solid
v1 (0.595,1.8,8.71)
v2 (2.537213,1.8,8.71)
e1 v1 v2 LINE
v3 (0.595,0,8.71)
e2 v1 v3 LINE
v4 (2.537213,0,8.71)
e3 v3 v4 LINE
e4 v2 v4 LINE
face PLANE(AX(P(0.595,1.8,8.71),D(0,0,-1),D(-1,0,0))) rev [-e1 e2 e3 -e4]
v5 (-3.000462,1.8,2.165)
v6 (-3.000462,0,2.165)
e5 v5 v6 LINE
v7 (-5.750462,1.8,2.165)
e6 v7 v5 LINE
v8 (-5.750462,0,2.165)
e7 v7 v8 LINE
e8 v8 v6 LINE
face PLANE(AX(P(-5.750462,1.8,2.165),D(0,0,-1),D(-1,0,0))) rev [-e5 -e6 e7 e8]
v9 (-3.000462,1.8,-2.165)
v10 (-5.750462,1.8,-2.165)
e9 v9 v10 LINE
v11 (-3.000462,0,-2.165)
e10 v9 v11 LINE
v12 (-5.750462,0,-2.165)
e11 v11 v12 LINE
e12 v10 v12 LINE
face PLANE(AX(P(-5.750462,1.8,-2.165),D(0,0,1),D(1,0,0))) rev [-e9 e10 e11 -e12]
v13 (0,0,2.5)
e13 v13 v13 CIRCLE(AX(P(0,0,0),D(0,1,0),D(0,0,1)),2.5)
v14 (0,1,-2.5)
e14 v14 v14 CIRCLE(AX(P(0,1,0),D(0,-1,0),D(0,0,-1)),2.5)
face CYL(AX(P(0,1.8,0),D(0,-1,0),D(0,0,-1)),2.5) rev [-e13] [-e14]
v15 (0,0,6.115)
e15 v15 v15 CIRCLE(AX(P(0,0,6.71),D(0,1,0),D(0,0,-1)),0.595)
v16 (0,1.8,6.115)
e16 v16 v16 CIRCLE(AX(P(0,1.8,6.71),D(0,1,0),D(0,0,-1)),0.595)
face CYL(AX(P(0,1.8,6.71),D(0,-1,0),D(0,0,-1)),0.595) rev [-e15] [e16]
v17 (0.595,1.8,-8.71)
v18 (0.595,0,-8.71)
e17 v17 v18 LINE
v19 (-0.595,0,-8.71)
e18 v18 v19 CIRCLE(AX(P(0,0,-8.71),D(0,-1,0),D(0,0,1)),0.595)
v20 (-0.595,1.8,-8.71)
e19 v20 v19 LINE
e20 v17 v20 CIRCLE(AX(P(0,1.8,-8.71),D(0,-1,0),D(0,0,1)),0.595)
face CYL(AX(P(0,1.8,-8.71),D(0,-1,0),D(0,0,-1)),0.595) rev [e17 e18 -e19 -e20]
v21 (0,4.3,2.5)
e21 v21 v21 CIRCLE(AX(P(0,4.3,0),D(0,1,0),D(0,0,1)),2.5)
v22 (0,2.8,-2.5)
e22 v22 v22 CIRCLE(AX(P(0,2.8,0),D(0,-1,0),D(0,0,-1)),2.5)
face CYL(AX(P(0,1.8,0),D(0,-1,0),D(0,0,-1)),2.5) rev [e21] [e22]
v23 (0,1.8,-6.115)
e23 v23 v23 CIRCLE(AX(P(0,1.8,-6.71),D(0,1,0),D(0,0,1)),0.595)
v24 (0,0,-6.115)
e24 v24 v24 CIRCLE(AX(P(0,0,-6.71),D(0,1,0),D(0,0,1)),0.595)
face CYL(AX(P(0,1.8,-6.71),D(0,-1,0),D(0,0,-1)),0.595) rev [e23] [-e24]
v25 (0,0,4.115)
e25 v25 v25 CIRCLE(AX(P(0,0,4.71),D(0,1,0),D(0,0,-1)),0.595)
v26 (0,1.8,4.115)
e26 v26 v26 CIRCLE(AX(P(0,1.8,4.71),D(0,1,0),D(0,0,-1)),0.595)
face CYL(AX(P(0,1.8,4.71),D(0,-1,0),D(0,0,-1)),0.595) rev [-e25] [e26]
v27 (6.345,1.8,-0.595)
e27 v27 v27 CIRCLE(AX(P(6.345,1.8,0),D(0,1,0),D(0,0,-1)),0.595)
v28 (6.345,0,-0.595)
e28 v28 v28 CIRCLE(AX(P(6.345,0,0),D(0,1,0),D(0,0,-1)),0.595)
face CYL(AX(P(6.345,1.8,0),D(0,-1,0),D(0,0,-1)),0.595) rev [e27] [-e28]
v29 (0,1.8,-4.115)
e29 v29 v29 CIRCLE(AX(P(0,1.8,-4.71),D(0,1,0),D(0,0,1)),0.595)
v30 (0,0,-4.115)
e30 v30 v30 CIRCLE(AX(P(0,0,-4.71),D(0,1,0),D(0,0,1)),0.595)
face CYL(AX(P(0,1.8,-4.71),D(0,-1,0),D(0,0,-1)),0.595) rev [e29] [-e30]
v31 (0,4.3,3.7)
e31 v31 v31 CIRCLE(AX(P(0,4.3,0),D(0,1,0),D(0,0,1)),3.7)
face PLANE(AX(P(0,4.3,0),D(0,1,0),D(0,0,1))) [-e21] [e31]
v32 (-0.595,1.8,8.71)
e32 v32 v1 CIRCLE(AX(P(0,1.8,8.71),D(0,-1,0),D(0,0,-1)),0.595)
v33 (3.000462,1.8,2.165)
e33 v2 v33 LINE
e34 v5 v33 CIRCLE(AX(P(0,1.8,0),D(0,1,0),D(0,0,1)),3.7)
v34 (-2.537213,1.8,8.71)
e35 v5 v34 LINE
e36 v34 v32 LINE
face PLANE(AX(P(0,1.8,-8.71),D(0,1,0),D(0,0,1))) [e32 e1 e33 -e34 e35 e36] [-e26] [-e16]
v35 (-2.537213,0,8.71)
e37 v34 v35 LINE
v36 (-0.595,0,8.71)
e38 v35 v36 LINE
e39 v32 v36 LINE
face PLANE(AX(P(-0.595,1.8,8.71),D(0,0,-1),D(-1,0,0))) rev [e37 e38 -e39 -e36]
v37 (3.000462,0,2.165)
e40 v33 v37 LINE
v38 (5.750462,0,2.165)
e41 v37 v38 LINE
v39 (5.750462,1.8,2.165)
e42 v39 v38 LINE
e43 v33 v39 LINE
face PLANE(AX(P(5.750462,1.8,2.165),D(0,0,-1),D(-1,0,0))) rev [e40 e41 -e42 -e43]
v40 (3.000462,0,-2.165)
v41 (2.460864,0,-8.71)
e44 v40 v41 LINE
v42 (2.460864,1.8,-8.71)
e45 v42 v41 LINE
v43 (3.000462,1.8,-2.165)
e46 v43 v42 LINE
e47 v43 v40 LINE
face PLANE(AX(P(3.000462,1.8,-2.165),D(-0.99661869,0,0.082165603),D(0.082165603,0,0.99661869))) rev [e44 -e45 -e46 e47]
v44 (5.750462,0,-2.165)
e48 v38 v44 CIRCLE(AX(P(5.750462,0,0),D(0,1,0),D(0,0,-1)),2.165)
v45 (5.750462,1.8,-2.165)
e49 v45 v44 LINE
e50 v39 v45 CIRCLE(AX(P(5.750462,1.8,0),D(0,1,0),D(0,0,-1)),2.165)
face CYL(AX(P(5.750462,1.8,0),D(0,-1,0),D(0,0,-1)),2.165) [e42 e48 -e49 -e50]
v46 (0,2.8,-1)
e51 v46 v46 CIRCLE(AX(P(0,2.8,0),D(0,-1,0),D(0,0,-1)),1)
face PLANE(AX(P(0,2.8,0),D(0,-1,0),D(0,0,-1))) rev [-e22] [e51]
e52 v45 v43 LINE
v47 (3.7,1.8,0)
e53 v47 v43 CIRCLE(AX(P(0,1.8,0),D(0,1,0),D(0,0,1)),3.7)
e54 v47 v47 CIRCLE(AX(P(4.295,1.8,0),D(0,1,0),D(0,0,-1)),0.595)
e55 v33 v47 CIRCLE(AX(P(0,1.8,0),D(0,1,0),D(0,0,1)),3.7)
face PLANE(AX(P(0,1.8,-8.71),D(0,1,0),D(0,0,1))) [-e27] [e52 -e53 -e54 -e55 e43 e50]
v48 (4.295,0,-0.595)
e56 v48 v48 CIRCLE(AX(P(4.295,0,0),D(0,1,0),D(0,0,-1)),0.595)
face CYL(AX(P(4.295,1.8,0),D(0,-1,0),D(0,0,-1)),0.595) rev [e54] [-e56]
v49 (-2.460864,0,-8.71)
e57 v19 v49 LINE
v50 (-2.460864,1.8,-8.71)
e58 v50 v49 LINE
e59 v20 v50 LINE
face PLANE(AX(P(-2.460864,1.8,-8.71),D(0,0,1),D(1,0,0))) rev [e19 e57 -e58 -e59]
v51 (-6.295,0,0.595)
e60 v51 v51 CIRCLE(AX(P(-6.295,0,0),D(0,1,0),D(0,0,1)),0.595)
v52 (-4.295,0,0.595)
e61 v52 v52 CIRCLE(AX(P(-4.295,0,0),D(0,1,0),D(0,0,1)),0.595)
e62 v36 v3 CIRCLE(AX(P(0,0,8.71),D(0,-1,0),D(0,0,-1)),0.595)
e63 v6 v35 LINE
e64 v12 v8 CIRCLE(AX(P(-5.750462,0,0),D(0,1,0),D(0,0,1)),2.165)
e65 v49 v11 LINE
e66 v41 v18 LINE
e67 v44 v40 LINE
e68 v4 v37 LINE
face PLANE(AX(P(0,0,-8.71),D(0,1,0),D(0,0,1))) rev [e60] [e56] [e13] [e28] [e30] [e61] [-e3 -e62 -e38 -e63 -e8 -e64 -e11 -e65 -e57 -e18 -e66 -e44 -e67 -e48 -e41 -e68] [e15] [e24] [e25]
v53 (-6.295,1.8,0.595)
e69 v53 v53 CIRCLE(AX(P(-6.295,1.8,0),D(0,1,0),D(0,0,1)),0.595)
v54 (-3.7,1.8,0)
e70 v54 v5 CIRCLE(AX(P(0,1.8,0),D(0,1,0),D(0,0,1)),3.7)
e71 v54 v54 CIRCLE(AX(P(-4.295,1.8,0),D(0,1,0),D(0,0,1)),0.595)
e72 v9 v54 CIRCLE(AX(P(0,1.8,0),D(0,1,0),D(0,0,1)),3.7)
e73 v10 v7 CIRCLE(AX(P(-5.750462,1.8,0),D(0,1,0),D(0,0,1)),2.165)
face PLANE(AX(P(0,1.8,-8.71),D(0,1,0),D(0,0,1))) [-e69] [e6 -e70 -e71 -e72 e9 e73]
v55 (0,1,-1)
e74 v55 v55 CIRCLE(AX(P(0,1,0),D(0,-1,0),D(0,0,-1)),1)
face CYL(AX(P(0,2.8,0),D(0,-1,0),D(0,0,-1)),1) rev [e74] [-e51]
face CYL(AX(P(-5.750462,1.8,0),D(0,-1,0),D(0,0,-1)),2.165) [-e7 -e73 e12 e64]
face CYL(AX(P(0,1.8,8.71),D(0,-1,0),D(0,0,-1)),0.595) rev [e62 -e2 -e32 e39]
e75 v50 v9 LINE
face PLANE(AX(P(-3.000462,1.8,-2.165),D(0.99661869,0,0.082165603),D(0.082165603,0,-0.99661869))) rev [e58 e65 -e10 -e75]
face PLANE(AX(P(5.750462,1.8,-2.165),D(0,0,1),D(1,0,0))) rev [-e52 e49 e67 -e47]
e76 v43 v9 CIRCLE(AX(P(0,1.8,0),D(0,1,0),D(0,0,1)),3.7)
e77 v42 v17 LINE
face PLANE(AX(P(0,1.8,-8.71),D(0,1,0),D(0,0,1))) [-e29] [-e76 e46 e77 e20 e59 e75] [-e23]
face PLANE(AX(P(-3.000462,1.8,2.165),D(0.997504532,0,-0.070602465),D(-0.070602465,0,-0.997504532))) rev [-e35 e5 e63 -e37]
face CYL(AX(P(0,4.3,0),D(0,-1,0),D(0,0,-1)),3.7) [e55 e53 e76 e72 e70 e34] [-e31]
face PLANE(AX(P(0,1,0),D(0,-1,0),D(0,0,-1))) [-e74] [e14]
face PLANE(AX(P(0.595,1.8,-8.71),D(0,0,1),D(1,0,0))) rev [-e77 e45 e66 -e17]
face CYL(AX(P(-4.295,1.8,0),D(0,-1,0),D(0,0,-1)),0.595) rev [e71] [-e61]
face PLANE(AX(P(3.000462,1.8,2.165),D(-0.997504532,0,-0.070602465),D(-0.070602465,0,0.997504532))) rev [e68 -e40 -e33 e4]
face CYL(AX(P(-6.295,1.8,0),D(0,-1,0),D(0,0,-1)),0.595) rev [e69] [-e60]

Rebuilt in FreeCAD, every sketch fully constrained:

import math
import FreeCAD as App
import Part
import Sketcher
Q = App.Units.Quantity

doc = App.newDocument("Part")
body = doc.addObject("PartDesign::Body", "Body")

# Sketch on XZ plane
sketch1 = doc.addObject("Sketcher::SketchObject", "Sketch")
body.addObject(sketch1)
sketch1.AttachmentSupport = (doc.XZ_Plane, [""])
sketch1.MapMode = "FlatFace"
sketch1.addGeometry([
    Part.LineSegment(App.Vector(-0.6, -8.7, 0), App.Vector(-2.5, -8.7, 0)),  # 0
    Part.LineSegment(App.Vector(-2.5, -8.7, 0), App.Vector(-3, -2.2, 0)),  # 1
    Part.LineSegment(App.Vector(-3, -2.2, 0), App.Vector(-5.8, -2.2, 0)),  # 2
    Part.ArcOfCircle(Part.Circle(App.Vector(-5.8, 0, 0), App.Vector(0, 0, 1), 2.2), math.radians(180), math.radians(270)),  # 3
    Part.ArcOfCircle(Part.Circle(App.Vector(-5.8, 0, 0), App.Vector(0, 0, 1), 2.2), math.radians(90), math.radians(180)),  # 4
    Part.LineSegment(App.Vector(-5.8, 2.2, 0), App.Vector(-3, 2.2, 0)),  # 5
    Part.LineSegment(App.Vector(-3, 2.2, 0), App.Vector(-2.5, 8.7, 0)),  # 6
    Part.LineSegment(App.Vector(-2.5, 8.7, 0), App.Vector(-0.6, 8.7, 0)),  # 7
    Part.ArcOfCircle(Part.Circle(App.Vector(0, 8.7, 0), App.Vector(0, 0, 1), 0.6), math.radians(180), math.radians(360)),  # 8
    Part.LineSegment(App.Vector(0.6, 8.7, 0), App.Vector(2.5, 8.7, 0)),  # 9
    Part.LineSegment(App.Vector(2.5, 8.7, 0), App.Vector(3, 2.2, 0)),  # 10
    Part.LineSegment(App.Vector(3, 2.2, 0), App.Vector(5.8, 2.2, 0)),  # 11
    Part.ArcOfCircle(Part.Circle(App.Vector(5.8, 0, 0), App.Vector(0, 0, 1), 2.2), math.radians(0), math.radians(90)),  # 12
    Part.ArcOfCircle(Part.Circle(App.Vector(5.8, 0, 0), App.Vector(0, 0, 1), 2.2), math.radians(-90), math.radians(0)),  # 13
    Part.LineSegment(App.Vector(5.8, -2.2, 0), App.Vector(3, -2.2, 0)),  # 14
    Part.LineSegment(App.Vector(3, -2.2, 0), App.Vector(2.5, -8.7, 0)),  # 15
    Part.LineSegment(App.Vector(2.5, -8.7, 0), App.Vector(0.6, -8.7, 0)),  # 16
    Part.ArcOfCircle(Part.Circle(App.Vector(0, -8.7, 0), App.Vector(0, 0, 1), 0.6), math.radians(0), math.radians(180)),  # 17
    Part.Circle(App.Vector(6.3, 0, 0), App.Vector(0, 0, 1), 0.6),  # 18
    Part.Circle(App.Vector(4.3, 0, 0), App.Vector(0, 0, 1), 0.6),  # 19
    Part.Circle(App.Vector(0, 6.7, 0), App.Vector(0, 0, 1), 0.6),  # 20
    Part.Circle(App.Vector(0, 4.7, 0), App.Vector(0, 0, 1), 0.6),  # 21
    Part.Circle(App.Vector(0, 0, 0), App.Vector(0, 0, 1), 2.5),  # 22
    Part.Circle(App.Vector(-4.3, 0, 0), App.Vector(0, 0, 1), 0.6),  # 23
    Part.Circle(App.Vector(-6.3, 0, 0), App.Vector(0, 0, 1), 0.6),  # 24
    Part.Circle(App.Vector(0, -4.7, 0), App.Vector(0, 0, 1), 0.6),  # 25
    Part.Circle(App.Vector(0, -6.7, 0), App.Vector(0, 0, 1), 0.6),  # 26
], False)
sketch1.addConstraint([
    Sketcher.Constraint("Coincident", 0, 2, 1, 1),
    Sketcher.Constraint("Coincident", 1, 2, 2, 1),
    Sketcher.Constraint("Tangent", 2, 2, 3, 2),
    Sketcher.Constraint("Tangent", 3, 1, 4, 2),
    Sketcher.Constraint("Tangent", 4, 1, 5, 1),
    Sketcher.Constraint("Coincident", 5, 2, 6, 1),
    Sketcher.Constraint("Coincident", 6, 2, 7, 1),
    Sketcher.Constraint("Coincident", 7, 2, 8, 1),
    Sketcher.Constraint("Coincident", 8, 2, 9, 1),
    Sketcher.Constraint("Coincident", 9, 2, 10, 1),
    Sketcher.Constraint("Coincident", 10, 2, 11, 1),
    Sketcher.Constraint("Tangent", 11, 2, 12, 2),
    Sketcher.Constraint("Tangent", 12, 1, 13, 2),
    Sketcher.Constraint("Tangent", 13, 1, 14, 1),
    Sketcher.Constraint("Coincident", 14, 2, 15, 1),
    Sketcher.Constraint("Coincident", 15, 2, 16, 1),
    Sketcher.Constraint("Coincident", 16, 2, 17, 1),
    Sketcher.Constraint("Coincident", 17, 2, 0, 1),
    Sketcher.Constraint("Horizontal", 0),
    Sketcher.Constraint("Horizontal", 2),
    Sketcher.Constraint("Horizontal", 5),
    Sketcher.Constraint("Horizontal", 7),
    Sketcher.Constraint("Horizontal", 9),
    Sketcher.Constraint("Horizontal", 11),
    Sketcher.Constraint("Horizontal", 14),
    Sketcher.Constraint("Horizontal", 16),
    Sketcher.Constraint("Coincident", 22, 3, -1, 1),
    Sketcher.Constraint("Equal", 3, 4),
    Sketcher.Constraint("Equal", 4, 12),
    Sketcher.Constraint("Equal", 12, 13),
    Sketcher.Constraint("Equal", 8, 17),
    Sketcher.Constraint("Equal", 17, 18),
    Sketcher.Constraint("Equal", 18, 19),
    Sketcher.Constraint("Equal", 19, 20),
    Sketcher.Constraint("Equal", 20, 21),
    Sketcher.Constraint("Equal", 21, 23),
    Sketcher.Constraint("Equal", 23, 24),
    Sketcher.Constraint("Equal", 24, 25),
    Sketcher.Constraint("Equal", 25, 26),
    Sketcher.Constraint("Symmetric", 3, 3, 12, 3, -1, 1),
    Sketcher.Constraint("Symmetric", 8, 3, 17, 3, -1, 1),
    Sketcher.Constraint("Symmetric", 19, 3, 23, 3, -1, 1),
    Sketcher.Constraint("Symmetric", 21, 3, 25, 3, -1, 1),
    Sketcher.Constraint("Symmetric", 20, 3, 26, 3, -1, 1),
    Sketcher.Constraint("Symmetric", 7, 2, 8, 2, -2),
    Sketcher.Constraint("Symmetric", 5, 2, 10, 2, -2),
    Sketcher.Constraint("Symmetric", 0, 2, 15, 2, -2),
    Sketcher.Constraint("PointOnObject", 18, 3, -1),
    Sketcher.Constraint("PointOnObject", 19, 3, -1),
    Sketcher.Constraint("PointOnObject", 20, 3, -2),
    Sketcher.Constraint("PointOnObject", 21, 3, -2),
    Sketcher.Constraint("PointOnObject", 24, 3, -1),
    Sketcher.Constraint("PointOnObject", 3, 1, -1),
    Sketcher.Constraint("PointOnObject", 12, 1, -1),
    Sketcher.Constraint("Horizontal", 17, 3, 0, 2),
    Sketcher.Constraint("Horizontal", 8, 3, 6, 2),
    Sketcher.Constraint("Vertical", 1, 2, 5, 2),
    Sketcher.Constraint("Vertical", 10, 2, 14, 2),
    Sketcher.Constraint("Equal", 7, 9),
    Sketcher.Constraint("Diameter", 22, Q("5 mm")),
    Sketcher.Constraint("Diameter", 18, Q("1.19 mm")),
    Sketcher.Constraint("Radius", 3, Q("2.165 mm")),
    Sketcher.Constraint("DistanceY", 20, 3, 8, 3, Q("2 mm")),
    Sketcher.Constraint("DistanceY", 21, 3, 20, 3, Q("2 mm")),
    Sketcher.Constraint("DistanceX", 24, 3, 23, 3, Q("2 mm")),
    Sketcher.Constraint("DistanceX", 2, 2, 2, 1, Q("2.75 mm")),
    Sketcher.Constraint("DistanceY", -1, 1, 8, 3, Q("8.71 mm")),
    Sketcher.Constraint("DistanceX", 19, 3, 18, 3, Q("2.05 mm")),
    Sketcher.Constraint("DistanceX", -1, 1, 18, 3, Q("6.345 mm")),
    Sketcher.Constraint("DistanceX", 15, 2, 14, 2, Q("0.539598 mm")),
    Sketcher.Constraint("DistanceX", 0, 2, 0, 1, Q("1.865864 mm")),
    Sketcher.Constraint("DistanceX", 7, 1, 7, 2, Q("1.942213 mm")),
])
pad1 = doc.addObject("PartDesign::Pad", "Pad")
body.addObject(pad1)
pad1.Profile = sketch1
pad1.Length = 1.8
pad1.Reversed = True

# Sketch on XZ plane
sketch2 = doc.addObject("Sketcher::SketchObject", "Sketch001")
body.addObject(sketch2)
sketch2.AttachmentSupport = (doc.XZ_Plane, [""])
sketch2.MapMode = "FlatFace"
sketch2.AttachmentOffset = App.Placement(App.Vector(0, 0, -1.8), App.Rotation())
sketch2.addGeometry([
    Part.Circle(App.Vector(0, 0, 0), App.Vector(0, 0, 1), 3.7),
    Part.Circle(App.Vector(0, 0, 0), App.Vector(0, 0, 1), 2.5),
], False)
sketch2.addConstraint([
    Sketcher.Constraint("Coincident", 0, 3, -1, 1),
    Sketcher.Constraint("Coincident", 1, 3, -1, 1),
    Sketcher.Constraint("Diameter", 1, Q("5 mm")),
    Sketcher.Constraint("Diameter", 0, Q("7.4 mm")),
])
pad2 = doc.addObject("PartDesign::Pad", "Pad001")
body.addObject(pad2)
pad2.Profile = sketch2
pad2.Length = 2.5
pad2.Reversed = True

# Sketch on XZ plane
sketch3 = doc.addObject("Sketcher::SketchObject", "Sketch002")
body.addObject(sketch3)
sketch3.AttachmentSupport = (doc.XZ_Plane, [""])
sketch3.MapMode = "FlatFace"
sketch3.AttachmentOffset = App.Placement(App.Vector(0, 0, -1), App.Rotation())
sketch3.addGeometry([
    Part.Circle(App.Vector(0, 0, 0), App.Vector(0, 0, 1), 2.5),
    Part.Circle(App.Vector(0, 0, 0), App.Vector(0, 0, 1), 1),
], False)
sketch3.addConstraint([
    Sketcher.Constraint("Coincident", 0, 3, -1, 1),
    Sketcher.Constraint("Coincident", 1, 3, -1, 1),
    Sketcher.Constraint("Diameter", 0, Q("5 mm")),
    Sketcher.Constraint("Diameter", 1, Q("2 mm")),
])
pad3 = doc.addObject("PartDesign::Pad", "Pad002")
body.addObject(pad3)
pad3.Profile = sketch3
pad3.Length = 1.8
pad3.Reversed = True

doc.recompute()
